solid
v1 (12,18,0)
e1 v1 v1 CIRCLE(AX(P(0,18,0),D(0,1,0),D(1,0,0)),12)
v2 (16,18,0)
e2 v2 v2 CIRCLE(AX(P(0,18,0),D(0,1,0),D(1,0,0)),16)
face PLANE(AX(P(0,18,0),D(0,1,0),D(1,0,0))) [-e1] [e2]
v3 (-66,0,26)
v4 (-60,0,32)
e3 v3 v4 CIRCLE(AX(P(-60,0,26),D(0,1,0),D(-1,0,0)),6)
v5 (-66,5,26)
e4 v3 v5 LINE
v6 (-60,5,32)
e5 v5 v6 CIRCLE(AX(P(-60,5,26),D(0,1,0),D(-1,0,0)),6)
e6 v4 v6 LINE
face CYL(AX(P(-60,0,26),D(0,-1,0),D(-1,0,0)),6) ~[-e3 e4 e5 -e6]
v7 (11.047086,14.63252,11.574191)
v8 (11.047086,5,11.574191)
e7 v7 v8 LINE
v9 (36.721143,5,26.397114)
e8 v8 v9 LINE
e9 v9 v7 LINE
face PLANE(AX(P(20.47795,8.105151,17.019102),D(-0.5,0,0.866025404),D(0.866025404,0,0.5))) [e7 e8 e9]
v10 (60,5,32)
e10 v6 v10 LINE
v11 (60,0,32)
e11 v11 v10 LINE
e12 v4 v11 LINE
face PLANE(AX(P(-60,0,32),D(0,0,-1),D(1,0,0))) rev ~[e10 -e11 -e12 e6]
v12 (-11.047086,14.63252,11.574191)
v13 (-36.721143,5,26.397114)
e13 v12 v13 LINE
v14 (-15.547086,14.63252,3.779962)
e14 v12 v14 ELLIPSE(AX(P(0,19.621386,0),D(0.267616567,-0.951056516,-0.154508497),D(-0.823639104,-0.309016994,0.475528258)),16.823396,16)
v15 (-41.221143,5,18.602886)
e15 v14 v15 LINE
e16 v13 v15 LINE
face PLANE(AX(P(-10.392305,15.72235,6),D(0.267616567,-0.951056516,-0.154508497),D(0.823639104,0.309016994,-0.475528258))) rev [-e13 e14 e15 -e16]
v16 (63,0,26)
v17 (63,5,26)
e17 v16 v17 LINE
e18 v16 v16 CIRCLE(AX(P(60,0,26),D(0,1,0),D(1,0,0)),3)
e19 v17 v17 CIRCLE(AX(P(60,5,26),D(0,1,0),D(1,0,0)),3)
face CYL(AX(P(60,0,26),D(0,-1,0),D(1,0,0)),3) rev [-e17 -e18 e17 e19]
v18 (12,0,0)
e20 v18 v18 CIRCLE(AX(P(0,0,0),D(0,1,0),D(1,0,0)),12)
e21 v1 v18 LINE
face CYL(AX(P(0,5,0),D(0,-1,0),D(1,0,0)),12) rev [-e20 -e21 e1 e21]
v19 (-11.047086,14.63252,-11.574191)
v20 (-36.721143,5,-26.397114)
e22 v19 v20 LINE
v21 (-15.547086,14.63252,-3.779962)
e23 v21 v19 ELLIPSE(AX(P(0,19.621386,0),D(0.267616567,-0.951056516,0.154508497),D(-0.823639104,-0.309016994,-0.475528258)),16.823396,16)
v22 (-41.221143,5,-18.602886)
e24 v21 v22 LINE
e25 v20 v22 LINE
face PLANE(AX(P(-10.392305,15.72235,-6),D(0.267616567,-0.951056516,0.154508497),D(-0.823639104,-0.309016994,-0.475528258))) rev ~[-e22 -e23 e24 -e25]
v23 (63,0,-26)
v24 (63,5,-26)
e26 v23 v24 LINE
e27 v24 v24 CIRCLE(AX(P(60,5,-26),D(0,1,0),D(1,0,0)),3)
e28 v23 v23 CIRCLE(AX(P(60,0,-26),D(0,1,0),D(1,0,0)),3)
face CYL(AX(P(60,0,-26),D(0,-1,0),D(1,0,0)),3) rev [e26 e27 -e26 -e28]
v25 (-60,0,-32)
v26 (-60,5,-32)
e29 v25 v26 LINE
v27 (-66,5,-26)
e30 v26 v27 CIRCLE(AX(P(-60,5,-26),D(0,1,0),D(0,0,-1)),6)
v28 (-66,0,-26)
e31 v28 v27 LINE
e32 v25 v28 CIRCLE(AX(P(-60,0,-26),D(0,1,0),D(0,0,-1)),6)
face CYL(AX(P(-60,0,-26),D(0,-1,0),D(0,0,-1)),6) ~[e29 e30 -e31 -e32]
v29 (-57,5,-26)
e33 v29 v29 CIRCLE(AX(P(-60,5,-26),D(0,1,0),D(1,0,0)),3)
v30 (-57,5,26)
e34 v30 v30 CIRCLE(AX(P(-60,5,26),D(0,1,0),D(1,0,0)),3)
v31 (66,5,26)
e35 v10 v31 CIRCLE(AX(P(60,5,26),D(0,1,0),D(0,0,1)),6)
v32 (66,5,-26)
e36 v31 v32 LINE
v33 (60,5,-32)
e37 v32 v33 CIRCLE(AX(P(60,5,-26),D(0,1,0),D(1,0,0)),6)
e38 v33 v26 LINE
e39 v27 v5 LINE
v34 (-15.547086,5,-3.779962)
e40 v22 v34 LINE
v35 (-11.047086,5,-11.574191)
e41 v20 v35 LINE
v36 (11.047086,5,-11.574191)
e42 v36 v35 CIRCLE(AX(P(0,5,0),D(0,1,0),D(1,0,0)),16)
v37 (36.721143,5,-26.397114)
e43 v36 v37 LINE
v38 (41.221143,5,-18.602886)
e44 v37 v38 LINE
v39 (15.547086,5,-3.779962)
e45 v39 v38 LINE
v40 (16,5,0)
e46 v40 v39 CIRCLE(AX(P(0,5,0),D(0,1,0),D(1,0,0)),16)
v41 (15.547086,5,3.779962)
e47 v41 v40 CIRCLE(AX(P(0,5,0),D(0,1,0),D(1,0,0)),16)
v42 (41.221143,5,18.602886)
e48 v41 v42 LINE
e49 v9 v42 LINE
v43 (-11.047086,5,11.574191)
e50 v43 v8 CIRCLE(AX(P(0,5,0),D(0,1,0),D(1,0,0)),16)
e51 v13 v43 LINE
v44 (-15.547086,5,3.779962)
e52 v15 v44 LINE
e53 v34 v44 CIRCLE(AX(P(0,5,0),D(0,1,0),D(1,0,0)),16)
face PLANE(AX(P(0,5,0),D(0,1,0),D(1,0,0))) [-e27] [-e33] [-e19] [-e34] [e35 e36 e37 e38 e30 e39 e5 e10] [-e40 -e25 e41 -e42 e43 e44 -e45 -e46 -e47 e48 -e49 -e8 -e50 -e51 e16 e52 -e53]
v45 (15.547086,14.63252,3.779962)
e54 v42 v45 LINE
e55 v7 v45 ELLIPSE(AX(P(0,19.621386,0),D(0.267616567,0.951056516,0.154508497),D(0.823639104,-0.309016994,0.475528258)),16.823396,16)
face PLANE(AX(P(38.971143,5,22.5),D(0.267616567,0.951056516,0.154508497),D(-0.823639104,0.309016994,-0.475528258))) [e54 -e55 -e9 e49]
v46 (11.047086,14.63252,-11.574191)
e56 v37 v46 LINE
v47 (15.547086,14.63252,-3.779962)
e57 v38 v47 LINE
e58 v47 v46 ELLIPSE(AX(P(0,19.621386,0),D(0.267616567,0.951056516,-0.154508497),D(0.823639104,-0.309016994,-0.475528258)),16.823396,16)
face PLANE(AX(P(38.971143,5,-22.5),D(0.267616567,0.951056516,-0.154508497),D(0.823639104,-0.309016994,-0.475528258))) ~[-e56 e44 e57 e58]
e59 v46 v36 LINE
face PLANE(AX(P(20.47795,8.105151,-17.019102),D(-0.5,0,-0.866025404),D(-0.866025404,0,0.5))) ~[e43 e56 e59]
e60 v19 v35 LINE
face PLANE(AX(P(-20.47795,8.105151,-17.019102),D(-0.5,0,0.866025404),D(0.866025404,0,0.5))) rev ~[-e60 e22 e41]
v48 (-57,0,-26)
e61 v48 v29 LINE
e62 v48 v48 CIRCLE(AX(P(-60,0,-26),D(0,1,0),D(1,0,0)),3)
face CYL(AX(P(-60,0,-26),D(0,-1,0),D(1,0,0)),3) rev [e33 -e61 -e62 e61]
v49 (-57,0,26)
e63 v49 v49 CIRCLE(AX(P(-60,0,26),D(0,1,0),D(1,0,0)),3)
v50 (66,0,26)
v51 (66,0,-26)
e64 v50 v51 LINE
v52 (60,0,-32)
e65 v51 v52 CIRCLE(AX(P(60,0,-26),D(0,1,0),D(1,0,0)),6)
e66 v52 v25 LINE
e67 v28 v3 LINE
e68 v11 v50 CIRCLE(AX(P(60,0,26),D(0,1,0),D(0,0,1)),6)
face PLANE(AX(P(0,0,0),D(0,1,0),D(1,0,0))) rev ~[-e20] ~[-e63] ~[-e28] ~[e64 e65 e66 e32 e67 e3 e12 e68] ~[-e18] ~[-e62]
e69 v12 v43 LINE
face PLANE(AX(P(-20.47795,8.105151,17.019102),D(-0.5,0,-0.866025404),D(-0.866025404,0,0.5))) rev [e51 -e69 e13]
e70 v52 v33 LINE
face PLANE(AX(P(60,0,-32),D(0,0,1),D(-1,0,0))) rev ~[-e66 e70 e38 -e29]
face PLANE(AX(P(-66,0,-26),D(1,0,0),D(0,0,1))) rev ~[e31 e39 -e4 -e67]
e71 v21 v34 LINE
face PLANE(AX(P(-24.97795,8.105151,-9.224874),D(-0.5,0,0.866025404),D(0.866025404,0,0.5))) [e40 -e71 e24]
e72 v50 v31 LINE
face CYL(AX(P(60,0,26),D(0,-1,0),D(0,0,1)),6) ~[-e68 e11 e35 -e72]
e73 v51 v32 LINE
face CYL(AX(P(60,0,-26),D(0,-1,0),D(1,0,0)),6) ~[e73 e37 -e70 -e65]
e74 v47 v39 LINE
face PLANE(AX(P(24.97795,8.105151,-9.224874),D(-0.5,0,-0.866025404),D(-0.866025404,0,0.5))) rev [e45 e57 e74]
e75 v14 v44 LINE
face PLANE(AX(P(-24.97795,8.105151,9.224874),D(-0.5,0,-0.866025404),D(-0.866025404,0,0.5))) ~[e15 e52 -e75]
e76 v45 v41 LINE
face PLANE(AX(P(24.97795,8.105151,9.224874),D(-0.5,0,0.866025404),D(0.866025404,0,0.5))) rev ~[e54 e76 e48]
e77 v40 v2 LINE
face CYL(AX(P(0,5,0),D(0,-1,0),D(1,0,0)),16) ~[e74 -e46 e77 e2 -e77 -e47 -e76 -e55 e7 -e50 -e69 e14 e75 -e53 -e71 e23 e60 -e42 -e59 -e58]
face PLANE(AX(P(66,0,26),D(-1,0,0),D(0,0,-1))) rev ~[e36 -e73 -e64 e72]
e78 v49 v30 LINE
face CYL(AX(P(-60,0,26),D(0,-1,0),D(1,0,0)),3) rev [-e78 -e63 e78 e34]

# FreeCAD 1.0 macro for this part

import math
import FreeCAD as App
import Part
import Sketcher
from FreeCAD import Vector
Q = App.Units.Quantity


def add_polygon(sketch, points):
    """Adds a closed chain of lines whose ends are joined by coincident constraints."""
    first, n = sketch.GeometryCount, len(points)
    for a, b in zip(points, points[1:] + points[:1]):
        sketch.addGeometry(Part.LineSegment(App.Vector(*a, 0), App.Vector(*b, 0)), False)
    for i in range(n):
        sketch.addConstraint(Sketcher.Constraint("Coincident", first + i, 2, first + (i + 1) % n, 1))

doc = App.newDocument("Part")
body = doc.addObject("PartDesign::Body", "Body")

sketch1 = doc.addObject("Sketcher::SketchObject", "Sketch")
body.addObject(sketch1)
sketch1.AttachmentSupport = (doc.XZ_Plane, [""])
sketch1.MapMode = "FlatFace"
sketch1.addGeometry([
    Part.LineSegment(Vector(-60, 32, 0), Vector(60, 32, 0)),
    Part.ArcOfCircle(Part.Circle(Vector(60, 26, 0), Vector(0, 0, 1), 6), math.radians(0), math.radians(90)),
    Part.LineSegment(Vector(66, 26, 0), Vector(66, -26, 0)),
    Part.ArcOfCircle(Part.Circle(Vector(60, -26, 0), Vector(0, 0, 1), 6), math.radians(-90), math.radians(0)),
    Part.LineSegment(Vector(60, -32, 0), Vector(-60, -32, 0)),
    Part.ArcOfCircle(Part.Circle(Vector(-60, -26, 0), Vector(0, 0, 1), 6), math.radians(180), math.radians(270)),
    Part.LineSegment(Vector(-66, -26, 0), Vector(-66, 26, 0)),
    Part.ArcOfCircle(Part.Circle(Vector(-60, 26, 0), Vector(0, 0, 1), 6), math.radians(90), math.radians(180)),
    Part.Circle(Vector(-60, 26, 0), Vector(0, 0, 1), 3),
    Part.Circle(Vector(60, 26, 0), Vector(0, 0, 1), 3),
    Part.Circle(Vector(-60, -26, 0), Vector(0, 0, 1), 3),
    Part.Circle(Vector(0, 0, 0), Vector(0, 0, 1), 12),
    Part.Circle(Vector(60, -26, 0), Vector(0, 0, 1), 3),
], False)
sketch1.addConstraint([
    Sketcher.Constraint("Tangent", 0, 2, 1, 2),
    Sketcher.Constraint("Tangent", 1, 1, 2, 1),
    Sketcher.Constraint("Tangent", 2, 2, 3, 2),
    Sketcher.Constraint("Tangent", 3, 1, 4, 1),
    Sketcher.Constraint("Tangent", 4, 2, 5, 2),
    Sketcher.Constraint("Tangent", 5, 1, 6, 1),
    Sketcher.Constraint("Tangent", 6, 2, 7, 2),
    Sketcher.Constraint("Tangent", 7, 1, 0, 1),
    Sketcher.Constraint("Horizontal", 0),
    Sketcher.Constraint("Vertical", 2),
    Sketcher.Constraint("Horizontal", 4),
    Sketcher.Constraint("Vertical", 6),
    Sketcher.Constraint("Coincident", 11, 3, -1, 1),
    Sketcher.Constraint("Coincident", 8, 3, 7, 3),
    Sketcher.Constraint("Coincident", 9, 3, 1, 3),
    Sketcher.Constraint("Coincident", 10, 3, 5, 3),
    Sketcher.Constraint("Coincident", 12, 3, 3, 3),
    Sketcher.Constraint("Equal", 1, 3),
    Sketcher.Constraint("Equal", 3, 5),
    Sketcher.Constraint("Equal", 5, 7),
    Sketcher.Constraint("Equal", 8, 9),
    Sketcher.Constraint("Equal", 9, 10),
    Sketcher.Constraint("Equal", 10, 12),
    Sketcher.Constraint("Symmetric", 1, 3, 5, 3, -1, 1),
    Sketcher.Constraint("Diameter", 8, 6.0),
    Sketcher.Constraint("Diameter", 11, 24.0),
    Sketcher.Constraint("Radius", 1, 6.0),
    Sketcher.Constraint("DistanceX", 0, 1, 0, 2, 120.0),
    Sketcher.Constraint("DistanceY", 2, 2, 2, 1, 52.0),
])
pad1 = doc.addObject("PartDesign::Pad", "Pad")
body.addObject(pad1)
pad1.Profile = sketch1
pad1.Length = 5
pad1.Reversed = True

sketch2 = doc.addObject("Sketcher::SketchObject", "Sketch001")
body.addObject(sketch2)
sketch2.AttachmentSupport = (doc.XZ_Plane, [""])
sketch2.MapMode = "FlatFace"
sketch2.AttachmentOffset = App.Placement(Vector(0, 0, -5), App.Rotation())
sketch2.addGeometry([
    Part.Circle(Vector(0, 0, 0), Vector(0, 0, 1), 16),
    Part.Circle(Vector(0, 0, 0), Vector(0, 0, 1), 12),
], False)
sketch2.addConstraint([
    Sketcher.Constraint("Coincident", 0, 3, -1, 1),
    Sketcher.Constraint("Coincident", 1, 3, -1, 1),
    Sketcher.Constraint("Diameter", 0, 32.0),
    Sketcher.Constraint("Diameter", 1, 24.0),
])
pad2 = doc.addObject("PartDesign::Pad", "Pad001")
body.addObject(pad2)
pad2.Profile = sketch2
pad2.Length = 13
pad2.Reversed = True

sketch3 = doc.addObject("Sketcher::SketchObject", "Sketch002")
body.addObject(sketch3)
sketch3.Placement = App.Placement(Vector(0, 0, 0), App.Rotation(Vector(0.866025404, 0, 0.5), Vector(0, 1, 0), Vector(-0.5, 0, 0.866025404), "ZXY"))
add_polygon(sketch3, [(-12, 15.72235), (-45, 5), (-12, 5)])
add_polygon(sketch3, [(12, 15.72235), (12, 5), (45, 5)])
sketch3.addConstraint([
    Sketcher.Constraint("Horizontal", 1),
    Sketcher.Constraint("Vertical", 2),
    Sketcher.Constraint("Vertical", 3),
    Sketcher.Constraint("Horizontal", 4),
    Sketcher.Constraint("Symmetric", 1, 2, 3, 2, -2),
    Sketcher.Constraint("Horizontal", 2, 2, 5, 2),
    Sketcher.Constraint("Equal", 1, 4),
    Sketcher.Constraint("DistanceX", 1, 1, 1, 2, 33.0),
    Sketcher.Constraint("Angle", 0, Q("-162 deg")),
    Sketcher.Constraint("DistanceX", 0, 2, -1, 1, 45.0),
    Sketcher.Constraint("DistanceY", -1, 1, 0, 2, 5.0),
])
pad3 = doc.addObject("PartDesign::Pad", "Pad002")
body.addObject(pad3)
pad3.Profile = sketch3
pad3.Length = 9
pad3.Midplane = True
doc.recompute()

mirrored = doc.addObject("PartDesign::Mirrored", "Mirrored")
body.addObject(mirrored)
mirrored.Originals = [pad3]
mirrored.MirrorPlane = (doc.XY_Plane, [""])
body.Tip = mirrored

doc.recompute()
